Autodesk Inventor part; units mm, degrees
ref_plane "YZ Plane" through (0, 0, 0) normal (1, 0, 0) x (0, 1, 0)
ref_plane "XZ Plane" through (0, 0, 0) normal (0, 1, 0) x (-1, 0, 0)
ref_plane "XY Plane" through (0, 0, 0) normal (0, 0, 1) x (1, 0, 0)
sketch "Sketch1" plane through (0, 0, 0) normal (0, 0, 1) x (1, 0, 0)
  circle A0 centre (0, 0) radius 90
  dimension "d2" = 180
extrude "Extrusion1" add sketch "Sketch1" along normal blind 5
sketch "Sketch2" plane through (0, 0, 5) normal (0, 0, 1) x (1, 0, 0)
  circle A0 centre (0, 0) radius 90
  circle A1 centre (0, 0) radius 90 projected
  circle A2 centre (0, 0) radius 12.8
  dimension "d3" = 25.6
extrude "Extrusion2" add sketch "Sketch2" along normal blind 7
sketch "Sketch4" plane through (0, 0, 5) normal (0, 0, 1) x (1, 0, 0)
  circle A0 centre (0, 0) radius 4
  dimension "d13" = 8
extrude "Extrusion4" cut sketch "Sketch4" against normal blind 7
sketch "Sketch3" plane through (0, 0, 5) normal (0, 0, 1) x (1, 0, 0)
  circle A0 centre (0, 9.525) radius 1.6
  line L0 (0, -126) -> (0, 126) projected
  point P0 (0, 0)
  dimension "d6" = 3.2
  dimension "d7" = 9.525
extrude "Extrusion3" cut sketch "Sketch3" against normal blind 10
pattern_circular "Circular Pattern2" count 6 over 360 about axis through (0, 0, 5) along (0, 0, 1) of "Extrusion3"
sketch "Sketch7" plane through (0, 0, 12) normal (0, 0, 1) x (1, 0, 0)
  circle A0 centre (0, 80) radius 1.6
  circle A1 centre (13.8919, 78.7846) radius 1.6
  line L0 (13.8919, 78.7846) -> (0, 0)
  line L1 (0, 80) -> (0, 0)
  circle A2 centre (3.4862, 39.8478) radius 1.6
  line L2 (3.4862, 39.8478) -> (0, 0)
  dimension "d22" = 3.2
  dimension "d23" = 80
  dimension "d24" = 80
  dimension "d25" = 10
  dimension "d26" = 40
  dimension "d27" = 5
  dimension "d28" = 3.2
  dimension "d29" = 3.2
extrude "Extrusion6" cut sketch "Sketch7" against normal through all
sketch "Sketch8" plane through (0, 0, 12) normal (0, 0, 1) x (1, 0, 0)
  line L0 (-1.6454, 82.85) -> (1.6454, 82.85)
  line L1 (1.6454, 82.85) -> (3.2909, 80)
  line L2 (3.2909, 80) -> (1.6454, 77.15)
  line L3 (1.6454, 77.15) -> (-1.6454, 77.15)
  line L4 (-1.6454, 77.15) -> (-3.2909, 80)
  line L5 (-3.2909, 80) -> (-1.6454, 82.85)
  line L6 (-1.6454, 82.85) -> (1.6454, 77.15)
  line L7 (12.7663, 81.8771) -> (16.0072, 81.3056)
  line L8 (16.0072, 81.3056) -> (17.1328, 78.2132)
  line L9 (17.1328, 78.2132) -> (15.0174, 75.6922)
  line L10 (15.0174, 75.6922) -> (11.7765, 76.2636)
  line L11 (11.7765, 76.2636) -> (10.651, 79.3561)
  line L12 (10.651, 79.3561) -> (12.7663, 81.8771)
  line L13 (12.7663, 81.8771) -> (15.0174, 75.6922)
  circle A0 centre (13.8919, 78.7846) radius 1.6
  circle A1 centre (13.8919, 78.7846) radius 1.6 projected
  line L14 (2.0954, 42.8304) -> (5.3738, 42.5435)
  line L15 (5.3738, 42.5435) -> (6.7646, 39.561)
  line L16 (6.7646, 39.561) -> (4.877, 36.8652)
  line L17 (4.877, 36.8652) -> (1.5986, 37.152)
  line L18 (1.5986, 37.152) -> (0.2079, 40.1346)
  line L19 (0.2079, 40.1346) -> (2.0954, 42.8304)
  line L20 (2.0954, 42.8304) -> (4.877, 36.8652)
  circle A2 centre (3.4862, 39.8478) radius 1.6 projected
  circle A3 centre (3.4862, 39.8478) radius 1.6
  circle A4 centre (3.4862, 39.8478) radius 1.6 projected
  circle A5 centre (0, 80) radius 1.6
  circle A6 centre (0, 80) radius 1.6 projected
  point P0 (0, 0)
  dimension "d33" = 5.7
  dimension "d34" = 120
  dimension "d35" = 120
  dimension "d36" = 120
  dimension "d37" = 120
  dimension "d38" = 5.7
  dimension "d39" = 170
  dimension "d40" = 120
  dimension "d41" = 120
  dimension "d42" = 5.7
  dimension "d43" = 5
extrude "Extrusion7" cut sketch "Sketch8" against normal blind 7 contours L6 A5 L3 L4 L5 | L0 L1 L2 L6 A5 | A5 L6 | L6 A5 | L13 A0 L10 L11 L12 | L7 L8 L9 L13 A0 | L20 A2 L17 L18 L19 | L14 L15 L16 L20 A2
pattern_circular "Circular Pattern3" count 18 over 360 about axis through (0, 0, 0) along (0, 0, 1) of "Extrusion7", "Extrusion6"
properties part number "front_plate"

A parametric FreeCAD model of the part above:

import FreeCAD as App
import Part
import Sketcher

V = App.Vector
Q = App.Units.Quantity


def add_polygon(sketch, points):
    """Adds a closed chain of lines whose ends are joined by coincident constraints."""
    first, n = sketch.GeometryCount, len(points)
    for a, b in zip(points, points[1:] + points[:1]):
        sketch.addGeometry(Part.LineSegment(App.Vector(*a, 0), App.Vector(*b, 0)), False)
    for i in range(n):
        sketch.addConstraint(Sketcher.Constraint("Coincident", first + i, 2, first + (i + 1) % n, 1))

doc = App.newDocument("Part")
params = doc.addObject("Spreadsheet::Sheet", "Params")
for row, (alias, value) in enumerate([
    ("sketch1_diameter", "180 mm"),
    ("pad1_length", "5 mm"),
    ("sketch2_diameter", "25.6 mm"),
    ("sketch2_diameter2", "180 mm"),
    ("pad2_length", "7 mm"),
    ("sketch3_diameter", "8 mm"),
    ("pocket1_length", "7 mm"),
    ("sketch4_diameter", "3.2 mm"),
    ("pocket2_length", "10 mm"),
    ("sketch5_diameter", "3.2 mm"),
    ("sketch6_diameter", "3.2 mm"),
    ("pocket4_length", "7 mm"),
], start=1):
    params.set(f"A{row}", alias)
    params.set(f"B{row}", "=" + value)
    params.setAlias(f"B{row}", alias)

body = doc.addObject("PartDesign::Body", "Body")

# Sketch on XY plane
sketch1 = body.newObject("Sketcher::SketchObject", "Sketch")
sketch1.AttachmentSupport = (doc.getObject("XY_Plane"), [""])
sketch1.MapMode = "FlatFace"
sketch1.addGeometry(Part.Circle(V(0, 0, 0), V(0, 0, 1), 90), False)
sketch1.addConstraint(Sketcher.Constraint("Coincident", 0, 3, -1, 1))
sketch1.addConstraint(Sketcher.Constraint("Diameter", 0, Q("180 mm")))
sketch1.setExpression("Constraints[1]", "Params.sketch1_diameter")
pad1 = body.newObject("PartDesign::Pad", "Pad")
pad1.Profile = sketch1
pad1.setExpression("Length", "Params.pad1_length")

# Sketch on XY plane
sketch2 = body.newObject("Sketcher::SketchObject", "Sketch001")
sketch2.AttachmentSupport = (doc.getObject("XY_Plane"), [""])
sketch2.MapMode = "FlatFace"
sketch2.AttachmentOffset = App.Placement(V(0, 0, 5), App.Rotation())
sketch2.addGeometry(Part.Circle(V(0, 0, 0), V(0, 0, 1), 90), False)
sketch2.addGeometry(Part.Circle(V(0, 0, 0), V(0, 0, 1), 12.8), False)
sketch2.addConstraint(Sketcher.Constraint("Coincident", 0, 3, -1, 1))
sketch2.addConstraint(Sketcher.Constraint("Coincident", 1, 3, -1, 1))
sketch2.addConstraint(Sketcher.Constraint("Diameter", 1, Q("25.6 mm")))
sketch2.addConstraint(Sketcher.Constraint("Diameter", 0, Q("180 mm")))
sketch2.setExpression("Constraints[2]", "Params.sketch2_diameter")
sketch2.setExpression("Constraints[3]", "Params.sketch2_diameter2")
pad2 = body.newObject("PartDesign::Pad", "Pad001")
pad2.Profile = sketch2
pad2.setExpression("Length", "Params.pad2_length")

# Sketch on XY plane
sketch3 = body.newObject("Sketcher::SketchObject", "Sketch002")
sketch3.AttachmentSupport = (doc.getObject("XY_Plane"), [""])
sketch3.MapMode = "FlatFace"
sketch3.AttachmentOffset = App.Placement(V(0, 0, 5), App.Rotation())
sketch3.addGeometry(Part.Circle(V(0, 0, 0), V(0, 0, 1), 4), False)
sketch3.addConstraint(Sketcher.Constraint("Coincident", 0, 3, -1, 1))
sketch3.addConstraint(Sketcher.Constraint("Diameter", 0, Q("8 mm")))
sketch3.setExpression("Constraints[1]", "Params.sketch3_diameter")
pocket1 = body.newObject("PartDesign::Pocket", "Pocket")
pocket1.Profile = sketch3
pocket1.setExpression("Length", "Params.pocket1_length")

# Sketch on XY plane
sketch4 = body.newObject("Sketcher::SketchObject", "Sketch003")
sketch4.AttachmentSupport = (doc.getObject("XY_Plane"), [""])
sketch4.MapMode = "FlatFace"
sketch4.AttachmentOffset = App.Placement(V(0, 0, 5), App.Rotation())
sketch4.addGeometry(Part.Circle(V(0, 9.525, 0), V(0, 0, 1), 1.6), False)
sketch4.addConstraint(Sketcher.Constraint("PointOnObject", 0, 3, -2))
sketch4.addConstraint(Sketcher.Constraint("Diameter", 0, Q("3.2 mm")))
sketch4.addConstraint(Sketcher.Constraint("DistanceY", -1, 1, 0, 3, Q("9.525 mm")))
sketch4.setExpression("Constraints[1]", "Params.sketch4_diameter")
pocket2 = body.newObject("PartDesign::Pocket", "Pocket001")
pocket2.Profile = sketch4
pocket2.setExpression("Length", "Params.pocket2_length")
doc.recompute()

polarpattern = body.newObject("PartDesign::PolarPattern", "PolarPattern")
polarpattern.Originals = [pocket2]
polarpattern.Axis = (doc.getObject("Z_Axis"), [""])
polarpattern.Angle = 360
polarpattern.Occurrences = 6
body.Tip = polarpattern

# Sketch on XY plane
sketch5 = body.newObject("Sketcher::SketchObject", "Sketch004")
sketch5.AttachmentSupport = (doc.getObject("XY_Plane"), [""])
sketch5.MapMode = "FlatFace"
sketch5.AttachmentOffset = App.Placement(V(0, 0, 12), App.Rotation())
sketch5.addGeometry(Part.Circle(V(0, 80, 0), V(0, 0, 1), 1.6), False)
sketch5.addGeometry(Part.Circle(V(3.4862, 39.8478, 0), V(0, 0, 1), 1.6), False)
sketch5.addGeometry(Part.Circle(V(13.8919, 78.7846, 0), V(0, 0, 1), 1.6), False)
sketch5.addConstraint(Sketcher.Constraint("Equal", 0, 1))
sketch5.addConstraint(Sketcher.Constraint("Equal", 1, 2))
sketch5.addConstraint(Sketcher.Constraint("PointOnObject", 0, 3, -2))
sketch5.addConstraint(Sketcher.Constraint("Diameter", 0, Q("3.2 mm")))
sketch5.addConstraint(Sketcher.Constraint("DistanceY", -1, 1, 0, 3, Q("80 mm")))
sketch5.addConstraint(Sketcher.Constraint("DistanceX", -1, 1, 2, 3, Q("13.892 mm")))
sketch5.addConstraint(Sketcher.Constraint("DistanceX", -1, 1, 1, 3, Q("3.4862 mm")))
sketch5.addConstraint(Sketcher.Constraint("DistanceY", -1, 1, 1, 3, Q("39.8478 mm")))
sketch5.addConstraint(Sketcher.Constraint("DistanceY", -1, 1, 2, 3, Q("78.7846 mm")))
sketch5.setExpression("Constraints[3]", "Params.sketch5_diameter")
pocket3 = body.newObject("PartDesign::Pocket", "Pocket002")
pocket3.Profile = sketch5
pocket3.Type = "ThroughAll"

# Sketch on XY plane
sketch6 = body.newObject("Sketcher::SketchObject", "Sketch005")
sketch6.AttachmentSupport = (doc.getObject("XY_Plane"), [""])
sketch6.MapMode = "FlatFace"
sketch6.AttachmentOffset = App.Placement(V(0, 0, 12), App.Rotation())
add_polygon(sketch6, [(-1.6454, 77.15), (1.6454, 77.15), (3.2909, 80), (1.6454, 82.85), (-1.6454, 82.85), (-3.2909, 80)])  # lines 0-5
add_polygon(sketch6, [(11.7765, 76.2636), (15.0174, 75.6922), (17.1328, 78.2132), (16.0072, 81.3056), (12.7663, 81.8771), (10.651, 79.3561)])  # lines 6-11
sketch6.addGeometry(Part.Circle(V(13.8919, 78.7846, 0), V(0, 0, 1), 1.6), False)  # 12
add_polygon(sketch6, [(1.5986, 37.152), (4.877, 36.8652), (6.7646, 39.561), (5.3738, 42.5435), (2.0954, 42.8304), (0.2079, 40.1346)])  # lines 13-18
sketch6.addGeometry(Part.Circle(V(3.4862, 39.8478, 0), V(0, 0, 1), 1.6), False)  # 19
sketch6.addConstraint(Sketcher.Constraint("Horizontal", 0))
sketch6.addConstraint(Sketcher.Constraint("Horizontal", 3))
sketch6.addConstraint(Sketcher.Constraint("Equal", 12, 19))
sketch6.addConstraint(Sketcher.Constraint("Symmetric", 1, 2, 4, 2, -2))
sketch6.addConstraint(Sketcher.Constraint("Parallel", 1, 4))
sketch6.addConstraint(Sketcher.Constraint("Parallel", 2, 5))
sketch6.addConstraint(Sketcher.Constraint("Parallel", 6, 9))
sketch6.addConstraint(Sketcher.Constraint("Parallel", 7, 10))
sketch6.addConstraint(Sketcher.Constraint("Parallel", 8, 11))
sketch6.addConstraint(Sketcher.Constraint("Parallel", 13, 16))
sketch6.addConstraint(Sketcher.Constraint("Parallel", 14, 17))
sketch6.addConstraint(Sketcher.Constraint("Parallel", 15, 18))
sketch6.addConstraint(Sketcher.Constraint("Vertical", 0, 2, 2, 2))
sketch6.addConstraint(Sketcher.Constraint("Vertical", 3, 2, 5, 2))
sketch6.addConstraint(Sketcher.Constraint("Equal", 5, 6))
sketch6.addConstraint(Sketcher.Constraint("Equal", 6, 7))
sketch6.addConstraint(Sketcher.Constraint("Equal", 7, 8))
sketch6.addConstraint(Sketcher.Constraint("Equal", 8, 9))
sketch6.addConstraint(Sketcher.Constraint("Equal", 11, 13))
sketch6.addConstraint(Sketcher.Constraint("Equal", 13, 14))
sketch6.addConstraint(Sketcher.Constraint("Equal", 14, 15))
sketch6.addConstraint(Sketcher.Constraint("Equal", 15, 16))
sketch6.addConstraint(Sketcher.Constraint("Angle", 13, Q("-4.9996 deg")))
sketch6.addConstraint(Sketcher.Constraint("Diameter", 12, Q("3.2 mm")))
sketch6.addConstraint(Sketcher.Constraint("DistanceY", 0, 2, 2, 2, Q("5.7 mm")))
sketch6.addConstraint(Sketcher.Constraint("Angle", 1, Q("59.9992 deg")))
sketch6.addConstraint(Sketcher.Constraint("Angle", 6, Q("-9.999 deg")))
sketch6.addConstraint(Sketcher.Constraint("Angle", 7, Q("49.9996 deg")))
sketch6.addConstraint(Sketcher.Constraint("Angle", 8, Q("110.001 deg")))
sketch6.addConstraint(Sketcher.Constraint("Angle", 14, Q("55.0003 deg")))
sketch6.addConstraint(Sketcher.Constraint("Angle", 15, Q("115.0006 deg")))
sketch6.addConstraint(Sketcher.Constraint("DistanceY", -1, 1, 1, 2, Q("80 mm")))
sketch6.addConstraint(Sketcher.Constraint("DistanceY", 15, 2, 11, 2, Q("33.72 mm")))
sketch6.addConstraint(Sketcher.Constraint("DistanceX", 0, 2, 16, 2, Q("0.45 mm")))
sketch6.addConstraint(Sketcher.Constraint("DistanceX", 0, 1, 0, 2, Q("3.2908 mm")))
sketch6.addConstraint(Sketcher.Constraint("DistanceX", -1, 1, 12, 3, Q("13.892 mm")))
sketch6.addConstraint(Sketcher.Constraint("DistanceY", -1, 1, 9, 2, Q("81.877 mm")))
sketch6.addConstraint(Sketcher.Constraint("DistanceX", -1, 1, 10, 2, Q("10.651 mm")))
sketch6.addConstraint(Sketcher.Constraint("DistanceY", 12, 3, 8, 2, Q("2.521 mm")))
sketch6.addConstraint(Sketcher.Constraint("DistanceX", -1, 1, 19, 3, Q("3.4862 mm")))
sketch6.addConstraint(Sketcher.Constraint("DistanceY", -1, 1, 19, 3, Q("39.8478 mm")))
sketch6.setExpression("Constraints[41]", "Params.sketch6_diameter")
pocket4 = body.newObject("PartDesign::Pocket", "Pocket003")
pocket4.Profile = sketch6
pocket4.setExpression("Length", "Params.pocket4_length")
doc.recompute()

polarpattern2 = body.newObject("PartDesign::PolarPattern", "PolarPattern001")
polarpattern2.Originals = [pocket4, pocket3]
polarpattern2.Axis = (doc.getObject("Z_Axis"), [""])
polarpattern2.Angle = 360
polarpattern2.Occurrences = 18
body.Tip = polarpattern2

doc.recompute()
